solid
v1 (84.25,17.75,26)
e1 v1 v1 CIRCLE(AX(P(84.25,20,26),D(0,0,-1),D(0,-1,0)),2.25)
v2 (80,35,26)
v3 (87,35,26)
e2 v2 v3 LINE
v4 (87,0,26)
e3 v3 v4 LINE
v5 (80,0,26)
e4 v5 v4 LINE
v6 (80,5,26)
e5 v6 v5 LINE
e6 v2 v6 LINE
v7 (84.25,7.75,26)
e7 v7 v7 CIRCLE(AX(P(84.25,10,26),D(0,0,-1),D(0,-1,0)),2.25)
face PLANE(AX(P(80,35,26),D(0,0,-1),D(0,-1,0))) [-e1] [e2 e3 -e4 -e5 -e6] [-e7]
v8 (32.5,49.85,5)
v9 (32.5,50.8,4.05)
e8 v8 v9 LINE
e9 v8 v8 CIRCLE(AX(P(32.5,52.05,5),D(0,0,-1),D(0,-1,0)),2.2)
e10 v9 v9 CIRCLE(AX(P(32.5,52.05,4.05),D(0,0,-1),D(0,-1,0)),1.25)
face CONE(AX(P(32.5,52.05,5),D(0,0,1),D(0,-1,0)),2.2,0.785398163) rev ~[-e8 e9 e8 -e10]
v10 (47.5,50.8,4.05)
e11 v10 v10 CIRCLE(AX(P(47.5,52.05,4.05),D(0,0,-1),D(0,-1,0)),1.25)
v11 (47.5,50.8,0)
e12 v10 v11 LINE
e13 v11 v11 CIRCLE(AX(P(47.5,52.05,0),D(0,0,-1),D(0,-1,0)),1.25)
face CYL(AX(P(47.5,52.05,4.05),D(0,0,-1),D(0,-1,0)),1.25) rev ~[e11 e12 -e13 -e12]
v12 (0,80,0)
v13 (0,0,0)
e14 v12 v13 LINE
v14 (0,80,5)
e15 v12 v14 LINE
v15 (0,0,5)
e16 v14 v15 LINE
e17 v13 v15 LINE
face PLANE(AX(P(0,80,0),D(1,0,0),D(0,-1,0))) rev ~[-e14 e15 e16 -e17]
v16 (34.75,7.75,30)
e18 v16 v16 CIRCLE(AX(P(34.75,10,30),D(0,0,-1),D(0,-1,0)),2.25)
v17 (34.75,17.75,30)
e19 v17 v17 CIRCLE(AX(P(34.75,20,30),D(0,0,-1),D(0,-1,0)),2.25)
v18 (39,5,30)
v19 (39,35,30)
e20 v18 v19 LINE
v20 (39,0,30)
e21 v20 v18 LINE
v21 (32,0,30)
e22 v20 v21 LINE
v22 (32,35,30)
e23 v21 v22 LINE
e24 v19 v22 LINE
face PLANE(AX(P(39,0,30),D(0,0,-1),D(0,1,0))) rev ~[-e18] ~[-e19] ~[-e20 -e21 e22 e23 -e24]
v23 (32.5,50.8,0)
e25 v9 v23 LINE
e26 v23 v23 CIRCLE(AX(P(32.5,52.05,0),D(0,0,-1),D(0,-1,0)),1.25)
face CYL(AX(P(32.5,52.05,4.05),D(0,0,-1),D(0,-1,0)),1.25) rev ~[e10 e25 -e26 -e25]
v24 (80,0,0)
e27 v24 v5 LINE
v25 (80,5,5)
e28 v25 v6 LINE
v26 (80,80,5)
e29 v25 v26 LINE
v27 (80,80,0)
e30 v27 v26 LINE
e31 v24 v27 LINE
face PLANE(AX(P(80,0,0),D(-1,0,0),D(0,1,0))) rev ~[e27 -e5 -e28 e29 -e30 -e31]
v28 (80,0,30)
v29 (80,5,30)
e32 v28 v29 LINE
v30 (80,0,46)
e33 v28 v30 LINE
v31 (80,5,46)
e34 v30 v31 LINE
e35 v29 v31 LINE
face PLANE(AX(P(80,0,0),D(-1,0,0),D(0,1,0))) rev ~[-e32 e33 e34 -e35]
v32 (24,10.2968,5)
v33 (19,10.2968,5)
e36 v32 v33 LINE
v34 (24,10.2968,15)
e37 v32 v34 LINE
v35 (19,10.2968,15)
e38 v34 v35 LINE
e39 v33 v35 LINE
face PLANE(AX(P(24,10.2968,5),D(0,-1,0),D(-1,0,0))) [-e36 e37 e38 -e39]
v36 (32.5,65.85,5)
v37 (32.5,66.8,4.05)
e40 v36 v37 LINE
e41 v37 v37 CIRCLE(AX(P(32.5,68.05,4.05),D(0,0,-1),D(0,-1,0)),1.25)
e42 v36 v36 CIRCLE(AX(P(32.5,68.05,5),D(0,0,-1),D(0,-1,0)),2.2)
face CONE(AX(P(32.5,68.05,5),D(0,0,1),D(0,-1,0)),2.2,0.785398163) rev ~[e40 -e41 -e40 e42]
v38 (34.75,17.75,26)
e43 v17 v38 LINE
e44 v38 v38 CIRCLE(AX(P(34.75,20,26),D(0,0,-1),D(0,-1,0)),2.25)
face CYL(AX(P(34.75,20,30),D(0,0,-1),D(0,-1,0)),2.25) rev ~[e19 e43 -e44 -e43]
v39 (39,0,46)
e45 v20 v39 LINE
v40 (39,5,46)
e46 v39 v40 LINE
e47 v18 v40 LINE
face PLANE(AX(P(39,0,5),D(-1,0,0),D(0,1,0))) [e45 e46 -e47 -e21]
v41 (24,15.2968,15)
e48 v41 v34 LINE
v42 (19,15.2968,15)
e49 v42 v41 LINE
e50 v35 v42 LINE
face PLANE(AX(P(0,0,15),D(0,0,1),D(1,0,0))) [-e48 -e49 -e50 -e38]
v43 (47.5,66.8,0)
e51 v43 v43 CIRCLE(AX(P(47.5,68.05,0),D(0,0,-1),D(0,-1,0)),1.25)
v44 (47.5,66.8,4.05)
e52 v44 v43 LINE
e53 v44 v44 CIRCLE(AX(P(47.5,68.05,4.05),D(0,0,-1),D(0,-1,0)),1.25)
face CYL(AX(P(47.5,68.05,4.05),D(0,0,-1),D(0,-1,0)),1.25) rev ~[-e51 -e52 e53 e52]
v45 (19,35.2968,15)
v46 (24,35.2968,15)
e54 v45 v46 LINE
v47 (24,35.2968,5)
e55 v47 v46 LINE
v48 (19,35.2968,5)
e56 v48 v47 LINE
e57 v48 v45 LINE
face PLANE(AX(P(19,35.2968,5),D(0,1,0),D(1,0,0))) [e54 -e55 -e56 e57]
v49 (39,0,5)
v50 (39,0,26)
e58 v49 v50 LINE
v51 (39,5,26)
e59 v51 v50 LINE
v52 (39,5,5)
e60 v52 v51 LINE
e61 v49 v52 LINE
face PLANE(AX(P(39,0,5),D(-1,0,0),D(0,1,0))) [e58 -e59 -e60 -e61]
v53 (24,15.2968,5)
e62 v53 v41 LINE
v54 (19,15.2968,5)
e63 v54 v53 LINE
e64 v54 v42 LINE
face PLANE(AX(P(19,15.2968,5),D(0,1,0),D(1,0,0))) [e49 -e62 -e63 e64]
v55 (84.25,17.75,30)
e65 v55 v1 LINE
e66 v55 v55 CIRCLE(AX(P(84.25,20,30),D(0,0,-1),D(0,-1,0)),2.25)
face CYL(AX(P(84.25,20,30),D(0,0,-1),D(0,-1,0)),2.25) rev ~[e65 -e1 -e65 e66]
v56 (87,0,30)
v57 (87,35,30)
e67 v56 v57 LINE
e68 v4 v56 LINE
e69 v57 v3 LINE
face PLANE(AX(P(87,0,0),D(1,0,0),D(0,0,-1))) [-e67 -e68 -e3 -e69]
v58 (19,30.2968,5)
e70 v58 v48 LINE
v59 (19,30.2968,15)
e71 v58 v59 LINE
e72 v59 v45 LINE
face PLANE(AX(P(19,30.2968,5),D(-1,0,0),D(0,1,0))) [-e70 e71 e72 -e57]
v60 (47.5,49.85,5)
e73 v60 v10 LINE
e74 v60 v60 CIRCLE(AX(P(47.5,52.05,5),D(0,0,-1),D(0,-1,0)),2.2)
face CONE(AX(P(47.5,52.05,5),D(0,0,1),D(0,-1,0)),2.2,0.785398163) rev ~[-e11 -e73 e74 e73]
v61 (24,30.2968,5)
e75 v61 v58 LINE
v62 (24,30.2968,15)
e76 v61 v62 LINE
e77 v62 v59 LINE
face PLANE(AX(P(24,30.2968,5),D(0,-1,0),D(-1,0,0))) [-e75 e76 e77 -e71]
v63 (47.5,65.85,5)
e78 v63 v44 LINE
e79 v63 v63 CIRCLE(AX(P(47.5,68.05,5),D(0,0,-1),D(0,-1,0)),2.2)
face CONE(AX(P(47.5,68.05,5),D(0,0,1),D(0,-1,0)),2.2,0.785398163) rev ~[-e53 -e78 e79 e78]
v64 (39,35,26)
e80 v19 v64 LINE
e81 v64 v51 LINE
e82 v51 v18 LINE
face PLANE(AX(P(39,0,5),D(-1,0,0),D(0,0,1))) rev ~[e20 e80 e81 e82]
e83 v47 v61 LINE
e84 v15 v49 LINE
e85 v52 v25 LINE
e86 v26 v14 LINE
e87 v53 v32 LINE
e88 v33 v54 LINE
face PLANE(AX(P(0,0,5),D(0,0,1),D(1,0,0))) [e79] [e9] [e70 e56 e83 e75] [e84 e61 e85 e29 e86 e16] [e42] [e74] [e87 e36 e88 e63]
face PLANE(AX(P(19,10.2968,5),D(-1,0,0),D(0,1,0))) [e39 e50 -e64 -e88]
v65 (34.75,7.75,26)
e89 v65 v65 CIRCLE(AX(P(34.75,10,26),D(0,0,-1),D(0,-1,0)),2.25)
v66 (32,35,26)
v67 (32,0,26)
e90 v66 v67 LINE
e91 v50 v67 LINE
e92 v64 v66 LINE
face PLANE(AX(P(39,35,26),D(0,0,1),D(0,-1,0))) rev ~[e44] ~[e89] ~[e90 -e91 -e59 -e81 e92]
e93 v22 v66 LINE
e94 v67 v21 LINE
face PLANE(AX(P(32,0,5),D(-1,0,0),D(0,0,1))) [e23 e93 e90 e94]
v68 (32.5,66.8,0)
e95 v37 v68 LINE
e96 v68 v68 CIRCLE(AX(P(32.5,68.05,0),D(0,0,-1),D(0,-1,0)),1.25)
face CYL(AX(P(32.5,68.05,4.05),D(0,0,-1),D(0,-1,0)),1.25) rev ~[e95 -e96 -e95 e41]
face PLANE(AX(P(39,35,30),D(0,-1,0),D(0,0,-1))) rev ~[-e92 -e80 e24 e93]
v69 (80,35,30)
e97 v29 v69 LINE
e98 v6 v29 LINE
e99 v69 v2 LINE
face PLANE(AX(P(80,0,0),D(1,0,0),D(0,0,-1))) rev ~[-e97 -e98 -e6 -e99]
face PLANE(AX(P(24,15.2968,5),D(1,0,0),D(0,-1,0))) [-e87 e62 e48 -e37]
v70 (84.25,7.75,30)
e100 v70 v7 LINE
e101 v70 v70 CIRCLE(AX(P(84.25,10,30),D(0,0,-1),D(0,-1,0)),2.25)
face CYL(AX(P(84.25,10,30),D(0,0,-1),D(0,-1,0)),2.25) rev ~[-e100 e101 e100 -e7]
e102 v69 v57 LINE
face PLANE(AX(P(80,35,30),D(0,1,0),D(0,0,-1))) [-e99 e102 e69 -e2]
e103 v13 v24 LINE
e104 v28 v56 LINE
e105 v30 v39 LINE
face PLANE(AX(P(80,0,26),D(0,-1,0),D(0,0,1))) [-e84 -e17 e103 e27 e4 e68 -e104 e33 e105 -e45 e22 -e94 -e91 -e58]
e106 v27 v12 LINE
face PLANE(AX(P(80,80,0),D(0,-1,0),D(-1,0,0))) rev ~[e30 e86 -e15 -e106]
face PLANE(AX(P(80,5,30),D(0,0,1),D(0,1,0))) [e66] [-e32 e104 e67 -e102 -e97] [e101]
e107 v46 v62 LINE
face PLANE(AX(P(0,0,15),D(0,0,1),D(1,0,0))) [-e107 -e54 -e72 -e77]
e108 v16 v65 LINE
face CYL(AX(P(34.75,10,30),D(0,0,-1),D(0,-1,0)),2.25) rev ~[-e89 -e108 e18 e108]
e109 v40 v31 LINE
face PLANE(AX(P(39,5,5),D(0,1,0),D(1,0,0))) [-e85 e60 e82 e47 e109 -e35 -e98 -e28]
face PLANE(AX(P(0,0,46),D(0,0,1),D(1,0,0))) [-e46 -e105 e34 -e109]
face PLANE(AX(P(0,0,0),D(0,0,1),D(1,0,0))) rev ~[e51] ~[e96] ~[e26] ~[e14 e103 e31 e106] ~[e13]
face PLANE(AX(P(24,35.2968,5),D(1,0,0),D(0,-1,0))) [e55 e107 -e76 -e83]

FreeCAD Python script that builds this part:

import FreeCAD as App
import Part
import Sketcher
from FreeCAD import Vector
Q = App.Units.Quantity


def add_polygon(sketch, points):
    """Adds a closed chain of lines whose ends are joined by coincident constraints."""
    first, n = sketch.GeometryCount, len(points)
    for a, b in zip(points, points[1:] + points[:1]):
        sketch.addGeometry(Part.LineSegment(App.Vector(*a, 0), App.Vector(*b, 0)), False)
    for i in range(n):
        sketch.addConstraint(Sketcher.Constraint("Coincident", first + i, 2, first + (i + 1) % n, 1))

doc = App.newDocument("Part")
params = doc.addObject("Spreadsheet::Sheet", "Params")
for row, (alias, value) in enumerate([
    ("sketch1_width", "80 mm"),
    ("pad1_length", "5 mm"),
    ("sketch2_width", "41 mm"),
    ("sketch2_height", "5 mm"),
    ("pad2_length", "41 mm"),
    ("sketch3_width", "5 mm"),
    ("pad3_length", "10 mm"),
    ("sketch4_diameter", "2.5 mm"),
    ("hole_diameter", "2.5 mm"),
    ("hole_depth", "5 mm"),
    ("hole_csink_diameter", "4.4 mm"),
    ("sketch5_width", "35 mm"),
    ("sketch5_height", "4 mm"),
    ("pad4_length", "7 mm"),
    ("sketch6_width", "35 mm"),
    ("sketch6_height", "4 mm"),
    ("pad5_length", "7 mm"),
    ("sketch7_diameter", "4.5 mm"),
    ("hole2_diameter", "4.5 mm"),
    ("hole2_depth", "4 mm"),
], start=1):
    params.set(f"A{row}", alias)
    params.set(f"B{row}", "=" + value)
    params.setAlias(f"B{row}", alias)

body = doc.addObject("PartDesign::Body", "Body")

sketch1 = body.newObject("Sketcher::SketchObject", "Sketch")
sketch1.AttachmentSupport = (doc.getObject("XY_Plane"), [""])
sketch1.MapMode = "FlatFace"
add_polygon(sketch1, [(0, 80), (0, 0), (80, 0), (80, 80)])
sketch1.addConstraint([
    Sketcher.Constraint("Vertical", 0),
    Sketcher.Constraint("Horizontal", 1),
    Sketcher.Constraint("Vertical", 2),
    Sketcher.Constraint("Horizontal", 3),
    Sketcher.Constraint("Coincident", 0, 2, -1, 1),
    Sketcher.Constraint("Equal", 3, 0),
    Sketcher.Constraint("DistanceX", 1, 1, 1, 2, Q("80 mm")),
])
sketch1.setExpression("Constraints[10]", "Params.sketch1_width")
pad1 = body.newObject("PartDesign::Pad", "Pad")
pad1.Profile = sketch1
pad1.setExpression("Length", "Params.pad1_length")

sketch2 = body.newObject("Sketcher::SketchObject", "Sketch001")
sketch2.AttachmentSupport = (doc.getObject("XY_Plane"), [""])
sketch2.MapMode = "FlatFace"
sketch2.AttachmentOffset = App.Placement(Vector(0, 0, 5), App.Rotation())
add_polygon(sketch2, [(39, 0), (80, 0), (80, 5), (39, 5)])
sketch2.addConstraint([
    Sketcher.Constraint("Horizontal", 0),
    Sketcher.Constraint("Vertical", 1),
    Sketcher.Constraint("Horizontal", 2),
    Sketcher.Constraint("Vertical", 3),
    Sketcher.Constraint("PointOnObject", 0, 2, -1),
    Sketcher.Constraint("DistanceX", 0, 1, 0, 2, Q("41 mm")),
    Sketcher.Constraint("DistanceY", 1, 1, 1, 2, Q("5 mm")),
    Sketcher.Constraint("DistanceX", -1, 1, 0, 2, Q("80 mm")),
])
sketch2.setExpression("Constraints[9]", "Params.sketch2_width")
sketch2.setExpression("Constraints[10]", "Params.sketch2_height")
pad2 = body.newObject("PartDesign::Pad", "Pad001")
pad2.Profile = sketch2
pad2.setExpression("Length", "Params.pad2_length")

sketch3 = body.newObject("Sketcher::SketchObject", "Sketch002")
sketch3.AttachmentSupport = (doc.getObject("XY_Plane"), [""])
sketch3.MapMode = "FlatFace"
sketch3.AttachmentOffset = App.Placement(Vector(0, 0, 5), App.Rotation())
add_polygon(sketch3, [(24, 35.3), (19, 35.3), (19, 30.3), (24, 30.3)])
add_polygon(sketch3, [(24, 15.3), (19, 15.3), (19, 10.3), (24, 10.3)])
sketch3.addConstraint([
    Sketcher.Constraint("Horizontal", 0),
    Sketcher.Constraint("Vertical", 1),
    Sketcher.Constraint("Horizontal", 2),
    Sketcher.Constraint("Vertical", 3),
    Sketcher.Constraint("Horizontal", 4),
    Sketcher.Constraint("Vertical", 5),
    Sketcher.Constraint("Horizontal", 6),
    Sketcher.Constraint("Vertical", 7),
    Sketcher.Constraint("Vertical", 1, 2, 4, 2),
    Sketcher.Constraint("Vertical", 3, 2, 6, 2),
    Sketcher.Constraint("Equal", 6, 1),
    Sketcher.Constraint("Equal", 3, 5),
    Sketcher.Constraint("DistanceX", 0, 2, 0, 1, Q("5 mm")),
    Sketcher.Constraint("DistanceY", 4, 2, 1, 2, Q("15 mm")),
    Sketcher.Constraint("DistanceX", -1, 1, 0, 2, Q("19 mm")),
    Sketcher.Constraint("DistanceY", -1, 1, 0, 2, Q("35.2968 mm")),
])
sketch3.setExpression("Constraints[20]", "Params.sketch3_width")
pad3 = body.newObject("PartDesign::Pad", "Pad002")
pad3.Profile = sketch3
pad3.setExpression("Length", "Params.pad3_length")

sketch4 = body.newObject("Sketcher::SketchObject", "Sketch003")
sketch4.AttachmentSupport = (doc.getObject("XY_Plane"), [""])
sketch4.MapMode = "FlatFace"
sketch4.AttachmentOffset = App.Placement(Vector(0, 0, 5), App.Rotation())
sketch4.addGeometry([
    Part.Circle(Vector(32.5, 68, 0), Vector(0, 0, 1), 1.2),
    Part.Circle(Vector(47.5, 68, 0), Vector(0, 0, 1), 1.2),
    Part.Circle(Vector(47.5, 52, 0), Vector(0, 0, 1), 1.2),
    Part.Circle(Vector(32.5, 52, 0), Vector(0, 0, 1), 1.2),
], False)
sketch4.addConstraint([
    Sketcher.Constraint("Equal", 0, 1),
    Sketcher.Constraint("Equal", 1, 2),
    Sketcher.Constraint("Equal", 2, 3),
    Sketcher.Constraint("Horizontal", 0, 3, 1, 3),
    Sketcher.Constraint("Horizontal", 2, 3, 3, 3),
    Sketcher.Constraint("Vertical", 1, 3, 2, 3),
    Sketcher.Constraint("Vertical", 0, 3, 3, 3),
    Sketcher.Constraint("Diameter", 0, Q("2.5 mm")),
    Sketcher.Constraint("DistanceX", 0, 3, 1, 3, Q("15 mm")),
    Sketcher.Constraint("DistanceY", 2, 3, 1, 3, Q("16 mm")),
    Sketcher.Constraint("DistanceX", -1, 1, 0, 3, Q("32.5 mm")),
    Sketcher.Constraint("DistanceY", -1, 1, 0, 3, Q("68.05 mm")),
])
sketch4.setExpression("Constraints[7]", "Params.sketch4_diameter")
doc.recompute()
hole = body.newObject("PartDesign::Hole", "Hole")
hole.Profile = sketch4
hole.ThreadType = "None"
hole.setExpression("Diameter", "Params.hole_diameter")
hole.DepthType = "Dimension"
hole.setExpression("Depth", "Params.hole_depth")
hole.DrillPoint = "Flat"
hole.HoleCutType = "Countersink"
hole.setExpression("HoleCutDiameter", "Params.hole_csink_diameter")
hole.HoleCutCountersinkAngle = 90

sketch5 = body.newObject("Sketcher::SketchObject", "Sketch004")
sketch5.AttachmentSupport = (doc.getObject("YZ_Plane"), [""])
sketch5.MapMode = "FlatFace"
sketch5.AttachmentOffset = App.Placement(Vector(0, 0, 39), App.Rotation())
add_polygon(sketch5, [(35, 26), (0, 26), (0, 30), (35, 30)])
sketch5.addConstraint([
    Sketcher.Constraint("Horizontal", 0),
    Sketcher.Constraint("Vertical", 1),
    Sketcher.Constraint("Horizontal", 2),
    Sketcher.Constraint("Vertical", 3),
    Sketcher.Constraint("PointOnObject", 0, 2, -2),
    Sketcher.Constraint("DistanceX", 0, 2, 0, 1, Q("35 mm")),
    Sketcher.Constraint("DistanceY", 1, 1, 1, 2, Q("4 mm")),
    Sketcher.Constraint("DistanceY", -1, 1, 0, 2, Q("26 mm")),
])
sketch5.setExpression("Constraints[9]", "Params.sketch5_width")
sketch5.setExpression("Constraints[10]", "Params.sketch5_height")
pad4 = body.newObject("PartDesign::Pad", "Pad003")
pad4.Profile = sketch5
pad4.setExpression("Length", "Params.pad4_length")
pad4.Reversed = True

sketch6 = body.newObject("Sketcher::SketchObject", "Sketch005")
sketch6.AttachmentSupport = (doc.getObject("YZ_Plane"), [""])
sketch6.MapMode = "FlatFace"
sketch6.AttachmentOffset = App.Placement(Vector(0, 0, 80), App.Rotation())
add_polygon(sketch6, [(35, 30), (0, 30), (0, 26), (35, 26)])
sketch6.addConstraint([
    Sketcher.Constraint("Horizontal", 0),
    Sketcher.Constraint("Vertical", 1),
    Sketcher.Constraint("Horizontal", 2),
    Sketcher.Constraint("Vertical", 3),
    Sketcher.Constraint("PointOnObject", 0, 2, -2),
    Sketcher.Constraint("DistanceX", 0, 2, 0, 1, Q("35 mm")),
    Sketcher.Constraint("DistanceY", 1, 2, 1, 1, Q("4 mm")),
    Sketcher.Constraint("DistanceY", -1, 1, 0, 2, Q("30 mm")),
])
sketch6.setExpression("Constraints[9]", "Params.sketch6_width")
sketch6.setExpression("Constraints[10]", "Params.sketch6_height")
pad5 = body.newObject("PartDesign::Pad", "Pad004")
pad5.Profile = sketch6
pad5.setExpression("Length", "Params.pad5_length")

sketch7 = body.newObject("Sketcher::SketchObject", "Sketch006")
sketch7.AttachmentSupport = (doc.getObject("XY_Plane"), [""])
sketch7.MapMode = "FlatFace"
sketch7.AttachmentOffset = App.Placement(Vector(0, 0, 30), App.Rotation())
sketch7.addGeometry([
    Part.Circle(Vector(34.8, 20, 0), Vector(0, 0, 1), 2.2),
    Part.Circle(Vector(34.8, 10, 0), Vector(0, 0, 1), 2.2),
    Part.Circle(Vector(84.2, 20, 0), Vector(0, 0, 1), 2.2),
    Part.Circle(Vector(84.2, 10, 0), Vector(0, 0, 1), 2.2),
], False)
sketch7.addConstraint([
    Sketcher.Constraint("Equal", 0, 1),
    Sketcher.Constraint("Equal", 1, 2),
    Sketcher.Constraint("Equal", 2, 3),
    Sketcher.Constraint("Horizontal", 0, 3, 2, 3),
    Sketcher.Constraint("Horizontal", 1, 3, 3, 3),
    Sketcher.Constraint("Vertical", 0, 3, 1, 3),
    Sketcher.Constraint("Vertical", 2, 3, 3, 3),
    Sketcher.Constraint("Diameter", 0, Q("4.5 mm")),
    Sketcher.Constraint("DistanceY", -1, 1, 0, 3, Q("20 mm")),
    Sketcher.Constraint("DistanceY", -1, 1, 1, 3, Q("10 mm")),
    Sketcher.Constraint("DistanceX", 0, 3, 2, 3, Q("49.5 mm")),
    Sketcher.Constraint("DistanceX", -1, 1, 0, 3, Q("34.75 mm")),
])
sketch7.setExpression("Constraints[7]", "Params.sketch7_diameter")
doc.recompute()
hole2 = body.newObject("PartDesign::Hole", "Hole001")
hole2.Profile = sketch7
hole2.ThreadType = "None"
hole2.setExpression("Diameter", "Params.hole2_diameter")
hole2.DepthType = "Dimension"
hole2.setExpression("Depth", "Params.hole2_depth")
hole2.DrillPoint = "Flat"

doc.recompute()
